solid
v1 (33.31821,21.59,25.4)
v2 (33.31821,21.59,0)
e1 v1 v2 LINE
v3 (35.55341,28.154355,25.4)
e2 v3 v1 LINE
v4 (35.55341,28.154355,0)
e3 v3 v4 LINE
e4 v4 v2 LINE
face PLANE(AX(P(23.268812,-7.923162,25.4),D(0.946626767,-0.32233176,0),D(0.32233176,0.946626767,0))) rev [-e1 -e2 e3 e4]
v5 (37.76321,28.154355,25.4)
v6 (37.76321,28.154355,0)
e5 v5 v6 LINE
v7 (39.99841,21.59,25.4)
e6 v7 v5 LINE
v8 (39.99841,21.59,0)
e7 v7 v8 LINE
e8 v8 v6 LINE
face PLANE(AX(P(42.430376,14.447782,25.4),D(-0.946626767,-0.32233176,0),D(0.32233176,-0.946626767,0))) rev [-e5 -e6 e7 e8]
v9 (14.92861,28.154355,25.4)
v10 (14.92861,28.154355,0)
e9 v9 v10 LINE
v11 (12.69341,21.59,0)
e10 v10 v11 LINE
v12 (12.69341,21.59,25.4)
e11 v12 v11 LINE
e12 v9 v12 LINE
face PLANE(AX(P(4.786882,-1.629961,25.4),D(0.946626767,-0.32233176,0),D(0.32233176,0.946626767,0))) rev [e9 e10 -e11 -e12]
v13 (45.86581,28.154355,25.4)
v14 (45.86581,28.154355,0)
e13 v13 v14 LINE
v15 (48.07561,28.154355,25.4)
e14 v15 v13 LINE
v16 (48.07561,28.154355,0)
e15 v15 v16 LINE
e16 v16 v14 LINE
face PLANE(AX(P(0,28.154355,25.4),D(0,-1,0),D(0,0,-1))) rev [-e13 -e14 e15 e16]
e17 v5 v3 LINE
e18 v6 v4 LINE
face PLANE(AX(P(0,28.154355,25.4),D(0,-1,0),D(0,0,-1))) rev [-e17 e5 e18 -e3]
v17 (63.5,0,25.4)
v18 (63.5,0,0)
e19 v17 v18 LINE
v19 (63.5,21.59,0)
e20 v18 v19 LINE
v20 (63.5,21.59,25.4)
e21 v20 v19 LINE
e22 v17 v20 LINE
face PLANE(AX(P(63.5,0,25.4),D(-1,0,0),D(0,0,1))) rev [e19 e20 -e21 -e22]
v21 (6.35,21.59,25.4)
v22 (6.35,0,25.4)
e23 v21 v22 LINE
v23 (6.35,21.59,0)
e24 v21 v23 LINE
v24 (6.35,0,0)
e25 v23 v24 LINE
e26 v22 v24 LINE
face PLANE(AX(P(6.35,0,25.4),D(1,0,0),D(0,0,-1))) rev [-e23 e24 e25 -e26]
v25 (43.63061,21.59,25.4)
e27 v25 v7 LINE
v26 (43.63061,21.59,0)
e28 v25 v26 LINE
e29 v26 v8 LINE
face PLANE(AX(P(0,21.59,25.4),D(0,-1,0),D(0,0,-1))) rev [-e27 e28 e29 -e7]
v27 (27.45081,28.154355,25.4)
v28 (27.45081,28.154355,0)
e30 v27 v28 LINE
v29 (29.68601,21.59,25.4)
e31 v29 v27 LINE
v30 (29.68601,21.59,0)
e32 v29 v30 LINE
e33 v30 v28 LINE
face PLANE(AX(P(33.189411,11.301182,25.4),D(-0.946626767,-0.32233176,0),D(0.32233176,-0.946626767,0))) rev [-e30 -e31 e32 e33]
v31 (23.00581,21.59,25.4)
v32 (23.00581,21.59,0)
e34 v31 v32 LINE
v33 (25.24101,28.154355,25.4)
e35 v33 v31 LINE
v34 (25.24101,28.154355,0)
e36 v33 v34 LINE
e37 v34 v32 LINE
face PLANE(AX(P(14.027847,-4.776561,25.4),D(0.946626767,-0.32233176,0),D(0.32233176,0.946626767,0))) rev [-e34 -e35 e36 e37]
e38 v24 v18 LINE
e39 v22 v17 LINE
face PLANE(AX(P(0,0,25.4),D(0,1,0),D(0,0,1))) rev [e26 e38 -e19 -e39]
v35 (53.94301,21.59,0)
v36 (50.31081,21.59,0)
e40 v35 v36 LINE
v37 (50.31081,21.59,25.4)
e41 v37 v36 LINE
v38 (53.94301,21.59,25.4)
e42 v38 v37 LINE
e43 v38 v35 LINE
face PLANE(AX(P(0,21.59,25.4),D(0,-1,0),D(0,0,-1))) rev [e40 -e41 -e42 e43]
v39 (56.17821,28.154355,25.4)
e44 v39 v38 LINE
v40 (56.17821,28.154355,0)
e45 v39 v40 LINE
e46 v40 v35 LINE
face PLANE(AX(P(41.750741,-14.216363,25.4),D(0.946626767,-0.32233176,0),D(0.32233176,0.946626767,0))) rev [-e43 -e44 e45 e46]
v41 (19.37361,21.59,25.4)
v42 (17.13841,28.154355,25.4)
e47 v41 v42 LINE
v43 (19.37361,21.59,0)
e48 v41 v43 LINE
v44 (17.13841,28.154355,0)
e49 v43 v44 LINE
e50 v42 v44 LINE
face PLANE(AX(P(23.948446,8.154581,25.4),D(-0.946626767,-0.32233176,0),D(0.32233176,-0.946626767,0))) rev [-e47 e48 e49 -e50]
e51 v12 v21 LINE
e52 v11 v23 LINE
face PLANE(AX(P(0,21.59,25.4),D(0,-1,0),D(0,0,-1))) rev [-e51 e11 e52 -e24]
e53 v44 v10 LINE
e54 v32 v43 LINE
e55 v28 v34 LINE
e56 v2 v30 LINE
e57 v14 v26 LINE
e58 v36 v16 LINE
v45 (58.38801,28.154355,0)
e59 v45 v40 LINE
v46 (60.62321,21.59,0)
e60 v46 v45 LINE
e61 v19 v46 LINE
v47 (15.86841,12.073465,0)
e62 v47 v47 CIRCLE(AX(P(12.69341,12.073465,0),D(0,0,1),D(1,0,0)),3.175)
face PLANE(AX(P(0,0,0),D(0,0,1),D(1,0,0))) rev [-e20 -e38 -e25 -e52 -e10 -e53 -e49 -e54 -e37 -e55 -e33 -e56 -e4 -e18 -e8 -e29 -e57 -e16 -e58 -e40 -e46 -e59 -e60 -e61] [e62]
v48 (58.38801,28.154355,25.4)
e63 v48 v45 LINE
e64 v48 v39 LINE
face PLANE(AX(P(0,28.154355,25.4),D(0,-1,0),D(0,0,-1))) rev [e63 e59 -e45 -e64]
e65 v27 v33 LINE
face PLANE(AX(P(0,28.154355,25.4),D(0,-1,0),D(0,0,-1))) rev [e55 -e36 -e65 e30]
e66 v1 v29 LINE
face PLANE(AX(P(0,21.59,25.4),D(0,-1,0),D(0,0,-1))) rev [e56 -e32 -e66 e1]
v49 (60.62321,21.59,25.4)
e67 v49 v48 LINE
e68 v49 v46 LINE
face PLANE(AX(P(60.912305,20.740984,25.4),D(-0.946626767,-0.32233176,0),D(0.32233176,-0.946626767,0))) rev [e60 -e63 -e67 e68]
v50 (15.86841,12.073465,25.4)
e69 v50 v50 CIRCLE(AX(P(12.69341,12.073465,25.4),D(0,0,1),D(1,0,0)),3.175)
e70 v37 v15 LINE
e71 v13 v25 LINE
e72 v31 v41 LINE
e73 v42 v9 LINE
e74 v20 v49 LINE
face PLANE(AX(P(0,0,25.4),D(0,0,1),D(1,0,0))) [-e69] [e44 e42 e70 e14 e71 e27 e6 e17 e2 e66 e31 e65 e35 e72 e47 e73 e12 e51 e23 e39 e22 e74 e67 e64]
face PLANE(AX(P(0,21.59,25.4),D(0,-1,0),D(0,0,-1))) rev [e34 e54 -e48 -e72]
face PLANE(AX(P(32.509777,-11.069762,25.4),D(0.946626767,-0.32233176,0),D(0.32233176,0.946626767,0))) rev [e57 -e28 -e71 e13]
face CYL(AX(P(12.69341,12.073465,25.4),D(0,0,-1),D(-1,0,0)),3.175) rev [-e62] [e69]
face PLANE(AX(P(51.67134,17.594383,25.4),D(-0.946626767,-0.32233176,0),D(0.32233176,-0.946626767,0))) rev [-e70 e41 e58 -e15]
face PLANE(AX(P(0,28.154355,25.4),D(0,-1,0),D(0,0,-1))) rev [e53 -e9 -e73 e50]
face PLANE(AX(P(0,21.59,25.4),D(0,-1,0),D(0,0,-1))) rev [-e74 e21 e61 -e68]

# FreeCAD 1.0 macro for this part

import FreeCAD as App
import Part
import Sketcher

V = App.Vector
Q = App.Units.Quantity

doc = App.newDocument("Part")
body = doc.addObject("PartDesign::Body", "Body")

sketch1 = doc.addObject("Sketcher::SketchObject", "Sketch")
body.addObject(sketch1)
sketch1.AttachmentSupport = (doc.XY_Plane, [""])
sketch1.MapMode = "FlatFace"
sketch1.addGeometry([
    Part.LineSegment(V(6.3, 0, 0), V(63.5, 0, 0)),
    Part.LineSegment(V(63.5, 0, 0), V(63.5, 21.6, 0)),
    Part.LineSegment(V(63.5, 21.6, 0), V(60.6, 21.6, 0)),
    Part.LineSegment(V(60.6, 21.6, 0), V(58.4, 28.2, 0)),
    Part.LineSegment(V(58.4, 28.2, 0), V(56.2, 28.2, 0)),
    Part.LineSegment(V(56.2, 28.2, 0), V(53.9, 21.6, 0)),
    Part.LineSegment(V(53.9, 21.6, 0), V(50.3, 21.6, 0)),
    Part.LineSegment(V(50.3, 21.6, 0), V(48.1, 28.2, 0)),
    Part.LineSegment(V(48.1, 28.2, 0), V(45.9, 28.2, 0)),
    Part.LineSegment(V(45.9, 28.2, 0), V(43.6, 21.6, 0)),
    Part.LineSegment(V(43.6, 21.6, 0), V(40, 21.6, 0)),
    Part.LineSegment(V(40, 21.6, 0), V(37.8, 28.2, 0)),
    Part.LineSegment(V(37.8, 28.2, 0), V(35.6, 28.2, 0)),
    Part.LineSegment(V(35.6, 28.2, 0), V(33.3, 21.6, 0)),
    Part.LineSegment(V(33.3, 21.6, 0), V(29.7, 21.6, 0)),
    Part.LineSegment(V(29.7, 21.6, 0), V(27.5, 28.2, 0)),
    Part.LineSegment(V(27.5, 28.2, 0), V(25.2, 28.2, 0)),
    Part.LineSegment(V(25.2, 28.2, 0), V(23, 21.6, 0)),
    Part.LineSegment(V(23, 21.6, 0), V(19.4, 21.6, 0)),
    Part.LineSegment(V(19.4, 21.6, 0), V(17.1, 28.2, 0)),
    Part.LineSegment(V(17.1, 28.2, 0), V(14.9, 28.2, 0)),
    Part.LineSegment(V(14.9, 28.2, 0), V(12.7, 21.6, 0)),
    Part.LineSegment(V(12.7, 21.6, 0), V(6.3, 21.6, 0)),
    Part.LineSegment(V(6.3, 21.6, 0), V(6.3, 0, 0)),
    Part.Circle(V(12.7, 12.1, 0), V(0, 0, 1), 3.2),
], False)
sketch1.addConstraint([
    Sketcher.Constraint("Coincident", 0, 2, 1, 1),
    Sketcher.Constraint("Coincident", 1, 2, 2, 1),
    Sketcher.Constraint("Coincident", 2, 2, 3, 1),
    Sketcher.Constraint("Coincident", 3, 2, 4, 1),
    Sketcher.Constraint("Coincident", 4, 2, 5, 1),
    Sketcher.Constraint("Coincident", 5, 2, 6, 1),
    Sketcher.Constraint("Coincident", 6, 2, 7, 1),
    Sketcher.Constraint("Coincident", 7, 2, 8, 1),
    Sketcher.Constraint("Coincident", 8, 2, 9, 1),
    Sketcher.Constraint("Coincident", 9, 2, 10, 1),
    Sketcher.Constraint("Coincident", 10, 2, 11, 1),
    Sketcher.Constraint("Coincident", 11, 2, 12, 1),
    Sketcher.Constraint("Coincident", 12, 2, 13, 1),
    Sketcher.Constraint("Coincident", 13, 2, 14, 1),
    Sketcher.Constraint("Coincident", 14, 2, 15, 1),
    Sketcher.Constraint("Coincident", 15, 2, 16, 1),
    Sketcher.Constraint("Coincident", 16, 2, 17, 1),
    Sketcher.Constraint("Coincident", 17, 2, 18, 1),
    Sketcher.Constraint("Coincident", 18, 2, 19, 1),
    Sketcher.Constraint("Coincident", 19, 2, 20, 1),
    Sketcher.Constraint("Coincident", 20, 2, 21, 1),
    Sketcher.Constraint("Coincident", 21, 2, 22, 1),
    Sketcher.Constraint("Coincident", 22, 2, 23, 1),
    Sketcher.Constraint("Coincident", 23, 2, 0, 1),
    Sketcher.Constraint("Horizontal", 0),
    Sketcher.Constraint("Vertical", 1),
    Sketcher.Constraint("Horizontal", 2),
    Sketcher.Constraint("Horizontal", 4),
    Sketcher.Constraint("Horizontal", 6),
    Sketcher.Constraint("Horizontal", 8),
    Sketcher.Constraint("Horizontal", 10),
    Sketcher.Constraint("Horizontal", 12),
    Sketcher.Constraint("Horizontal", 14),
    Sketcher.Constraint("Horizontal", 16),
    Sketcher.Constraint("Horizontal", 18),
    Sketcher.Constraint("Horizontal", 20),
    Sketcher.Constraint("Horizontal", 22),
    Sketcher.Constraint("Vertical", 23),
    Sketcher.Constraint("PointOnObject", 0, 2, -1),
    Sketcher.Constraint("Parallel", 3, 7),
    Sketcher.Constraint("Parallel", 5, 9),
    Sketcher.Constraint("Parallel", 7, 11),
    Sketcher.Constraint("Parallel", 9, 13),
    Sketcher.Constraint("Parallel", 11, 15),
    Sketcher.Constraint("Parallel", 13, 17),
    Sketcher.Constraint("Parallel", 15, 19),
    Sketcher.Constraint("Parallel", 17, 21),
    Sketcher.Constraint("Horizontal", 2, 2, 5, 2),
    Sketcher.Constraint("Horizontal", 4, 2, 7, 2),
    Sketcher.Constraint("Horizontal", 6, 2, 9, 2),
    Sketcher.Constraint("Horizontal", 8, 2, 11, 2),
    Sketcher.Constraint("Horizontal", 10, 2, 13, 2),
    Sketcher.Constraint("Horizontal", 12, 2, 15, 2),
    Sketcher.Constraint("Horizontal", 14, 2, 17, 2),
    Sketcher.Constraint("Horizontal", 16, 2, 19, 2),
    Sketcher.Constraint("Horizontal", 18, 2, 21, 2),
    Sketcher.Constraint("Vertical", 24, 3, 21, 2),
    Sketcher.Constraint("Equal", 4, 8),
    Sketcher.Constraint("Equal", 6, 10),
    Sketcher.Constraint("Equal", 8, 12),
    Sketcher.Constraint("Equal", 10, 14),
    Sketcher.Constraint("Equal", 12, 16),
    Sketcher.Constraint("Equal", 14, 18),
    Sketcher.Constraint("Equal", 16, 20),
    Sketcher.Constraint("Equal", 3, 5),
    Sketcher.Constraint("Diameter", 24, Q("0.25 in")),
    Sketcher.Constraint("DistanceX", 0, 1, 0, 2, Q("2.25 in")),
    Sketcher.Constraint("DistanceY", 1, 1, 1, 2, Q("0.85 in")),
    Sketcher.Constraint("DistanceX", -1, 1, 0, 2, Q("2.5 in")),
    Sketcher.Constraint("DistanceX", 4, 2, 4, 1, Q("0.087 in")),
    Sketcher.Constraint("DistanceX", 6, 2, 6, 1, Q("0.143 in")),
    Sketcher.Constraint("DistanceX", 24, 3, 2, 2, Q("1.887 in")),
    Sketcher.Constraint("DistanceX", 2, 2, 2, 1, Q("2.87679 mm")),
    Sketcher.Constraint("Distance", 3, Q("6.93447 mm")),
    Sketcher.Constraint("DistanceY", 24, 3, 3, 2, Q("16.08089 mm")),
])
pad1 = doc.addObject("PartDesign::Pad", "Pad")
body.addObject(pad1)
pad1.Profile = sketch1
pad1.Length = Q("1 in")

doc.recompute()
